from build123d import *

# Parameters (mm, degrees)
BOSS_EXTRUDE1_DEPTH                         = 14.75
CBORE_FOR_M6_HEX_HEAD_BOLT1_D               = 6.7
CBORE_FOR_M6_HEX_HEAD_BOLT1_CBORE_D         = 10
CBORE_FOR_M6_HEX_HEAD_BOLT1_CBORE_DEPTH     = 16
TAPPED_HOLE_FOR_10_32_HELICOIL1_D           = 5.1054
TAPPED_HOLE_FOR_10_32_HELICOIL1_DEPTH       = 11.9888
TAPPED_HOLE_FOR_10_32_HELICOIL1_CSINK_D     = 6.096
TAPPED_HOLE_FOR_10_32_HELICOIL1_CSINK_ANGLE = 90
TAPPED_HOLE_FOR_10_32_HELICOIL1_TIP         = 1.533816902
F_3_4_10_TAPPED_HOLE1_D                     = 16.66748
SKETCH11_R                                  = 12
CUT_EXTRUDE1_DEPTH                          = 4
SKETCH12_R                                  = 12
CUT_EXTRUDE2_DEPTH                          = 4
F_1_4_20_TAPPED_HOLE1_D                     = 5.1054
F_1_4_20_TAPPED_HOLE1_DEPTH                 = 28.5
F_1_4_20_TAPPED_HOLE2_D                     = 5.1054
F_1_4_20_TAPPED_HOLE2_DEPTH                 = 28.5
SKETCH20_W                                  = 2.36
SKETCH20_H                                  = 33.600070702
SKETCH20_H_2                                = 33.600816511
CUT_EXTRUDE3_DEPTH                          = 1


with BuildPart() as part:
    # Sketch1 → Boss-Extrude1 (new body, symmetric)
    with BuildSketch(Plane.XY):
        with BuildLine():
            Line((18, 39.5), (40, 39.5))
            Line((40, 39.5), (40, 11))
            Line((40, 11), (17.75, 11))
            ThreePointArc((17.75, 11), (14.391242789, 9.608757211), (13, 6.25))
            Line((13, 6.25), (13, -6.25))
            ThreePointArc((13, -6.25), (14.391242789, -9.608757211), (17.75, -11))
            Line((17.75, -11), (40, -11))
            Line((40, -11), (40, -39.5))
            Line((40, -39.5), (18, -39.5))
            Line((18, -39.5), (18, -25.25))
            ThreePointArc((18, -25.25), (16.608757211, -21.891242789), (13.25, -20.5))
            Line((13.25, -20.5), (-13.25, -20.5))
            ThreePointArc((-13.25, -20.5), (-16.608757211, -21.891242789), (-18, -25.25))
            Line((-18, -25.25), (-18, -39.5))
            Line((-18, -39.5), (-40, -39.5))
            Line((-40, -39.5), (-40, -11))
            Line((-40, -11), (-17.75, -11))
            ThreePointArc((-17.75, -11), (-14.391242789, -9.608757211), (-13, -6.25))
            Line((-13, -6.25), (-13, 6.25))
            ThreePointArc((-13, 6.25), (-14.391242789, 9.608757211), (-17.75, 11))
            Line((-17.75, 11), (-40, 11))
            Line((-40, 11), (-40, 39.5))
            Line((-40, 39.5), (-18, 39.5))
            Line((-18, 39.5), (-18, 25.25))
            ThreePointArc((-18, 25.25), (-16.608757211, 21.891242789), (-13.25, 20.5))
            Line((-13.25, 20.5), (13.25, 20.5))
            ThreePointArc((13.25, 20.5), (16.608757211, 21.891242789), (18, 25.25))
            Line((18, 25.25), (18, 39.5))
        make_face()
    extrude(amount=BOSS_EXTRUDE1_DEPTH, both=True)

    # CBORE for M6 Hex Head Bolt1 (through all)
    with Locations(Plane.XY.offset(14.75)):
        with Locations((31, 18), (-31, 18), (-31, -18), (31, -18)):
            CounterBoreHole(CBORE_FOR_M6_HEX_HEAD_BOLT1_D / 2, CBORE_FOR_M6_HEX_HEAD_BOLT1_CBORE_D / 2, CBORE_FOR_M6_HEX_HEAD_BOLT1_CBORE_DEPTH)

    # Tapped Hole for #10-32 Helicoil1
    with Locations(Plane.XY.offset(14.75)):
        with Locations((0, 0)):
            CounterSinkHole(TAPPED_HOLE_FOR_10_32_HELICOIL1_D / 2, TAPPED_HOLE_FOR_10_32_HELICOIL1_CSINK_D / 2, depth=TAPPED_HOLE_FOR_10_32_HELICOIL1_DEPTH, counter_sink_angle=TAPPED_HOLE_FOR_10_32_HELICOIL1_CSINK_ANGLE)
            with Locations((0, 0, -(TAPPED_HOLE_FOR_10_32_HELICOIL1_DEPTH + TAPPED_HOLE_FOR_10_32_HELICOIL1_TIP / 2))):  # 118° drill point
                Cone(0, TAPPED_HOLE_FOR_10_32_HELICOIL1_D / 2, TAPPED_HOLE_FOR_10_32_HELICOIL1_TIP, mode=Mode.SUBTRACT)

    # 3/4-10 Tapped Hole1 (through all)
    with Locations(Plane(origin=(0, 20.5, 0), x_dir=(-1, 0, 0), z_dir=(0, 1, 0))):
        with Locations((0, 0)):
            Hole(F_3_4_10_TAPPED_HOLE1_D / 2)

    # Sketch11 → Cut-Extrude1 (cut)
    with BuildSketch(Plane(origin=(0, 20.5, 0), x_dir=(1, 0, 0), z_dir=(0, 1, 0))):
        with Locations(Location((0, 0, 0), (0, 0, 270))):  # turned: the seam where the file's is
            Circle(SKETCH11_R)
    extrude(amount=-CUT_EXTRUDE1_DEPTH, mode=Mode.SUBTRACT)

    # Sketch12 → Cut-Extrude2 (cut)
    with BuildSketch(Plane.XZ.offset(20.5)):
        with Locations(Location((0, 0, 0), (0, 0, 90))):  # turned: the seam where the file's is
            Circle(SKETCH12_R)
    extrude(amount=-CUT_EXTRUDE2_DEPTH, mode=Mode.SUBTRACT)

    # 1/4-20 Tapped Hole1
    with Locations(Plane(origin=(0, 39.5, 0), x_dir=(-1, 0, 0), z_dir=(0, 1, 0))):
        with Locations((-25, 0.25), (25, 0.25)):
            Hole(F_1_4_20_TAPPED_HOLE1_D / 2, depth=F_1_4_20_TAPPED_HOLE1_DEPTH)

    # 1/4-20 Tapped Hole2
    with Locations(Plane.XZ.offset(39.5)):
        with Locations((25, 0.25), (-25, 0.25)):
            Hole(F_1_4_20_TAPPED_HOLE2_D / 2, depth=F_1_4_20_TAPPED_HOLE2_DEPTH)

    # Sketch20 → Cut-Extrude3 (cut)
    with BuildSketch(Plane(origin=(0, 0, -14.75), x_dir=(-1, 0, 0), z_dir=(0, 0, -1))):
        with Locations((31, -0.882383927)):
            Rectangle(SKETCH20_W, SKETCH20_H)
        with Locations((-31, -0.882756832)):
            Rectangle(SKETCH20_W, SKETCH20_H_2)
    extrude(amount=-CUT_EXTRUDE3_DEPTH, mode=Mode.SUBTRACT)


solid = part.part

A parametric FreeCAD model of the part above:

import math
import FreeCAD as App
import Part
import Sketcher

V = App.Vector
Q = App.Units.Quantity

doc = App.newDocument("Part")
body = doc.addObject("PartDesign::Body", "Body")

sketch1 = body.newObject("Sketcher::SketchObject", "Sketch")
sketch1.AttachmentSupport = (doc.getObject("XY_Plane"), [""])
sketch1.MapMode = "FlatFace"
sketch1.addGeometry(Part.LineSegment(V(40, 39.5, 0), V(18, 39.5, 0)), False)
sketch1.addGeometry(Part.LineSegment(V(18, 39.5, 0), V(18, 25.2, 0)), False)
sketch1.addGeometry(Part.ArcOfCircle(Part.Circle(V(13.3, 25.2, 0), V(0, 0, 1), 4.7), math.radians(-90), math.radians(0)), False)
sketch1.addGeometry(Part.LineSegment(V(13.2, 20.5, 0), V(-13.2, 20.5, 0)), False)
sketch1.addGeometry(Part.ArcOfCircle(Part.Circle(V(-13.3, 25.2, 0), V(0, 0, 1), 4.7), math.radians(180), math.radians(270)), False)
sketch1.addGeometry(Part.LineSegment(V(-18, 25.2, 0), V(-18, 39.5, 0)), False)
sketch1.addGeometry(Part.LineSegment(V(-18, 39.5, 0), V(-40, 39.5, 0)), False)
sketch1.addGeometry(Part.LineSegment(V(-40, 39.5, 0), V(-40, 11, 0)), False)
sketch1.addGeometry(Part.LineSegment(V(-40, 11, 0), V(-17.8, 11, 0)), False)
sketch1.addGeometry(Part.ArcOfCircle(Part.Circle(V(-17.7, 6.3, 0), V(0, 0, 1), 4.7), math.radians(0), math.radians(90)), False)
sketch1.addGeometry(Part.LineSegment(V(-13, 6.2, 0), V(-13, -6.2, 0)), False)
sketch1.addGeometry(Part.ArcOfCircle(Part.Circle(V(-17.7, -6.3, 0), V(0, 0, 1), 4.7), math.radians(-90), math.radians(0)), False)
sketch1.addGeometry(Part.LineSegment(V(-17.8, -11, 0), V(-40, -11, 0)), False)
sketch1.addGeometry(Part.LineSegment(V(-40, -11, 0), V(-40, -39.5, 0)), False)
sketch1.addGeometry(Part.LineSegment(V(-40, -39.5, 0), V(-18, -39.5, 0)), False)
sketch1.addGeometry(Part.LineSegment(V(-18, -39.5, 0), V(-18, -25.2, 0)), False)
sketch1.addGeometry(Part.ArcOfCircle(Part.Circle(V(-13.3, -25.2, 0), V(0, 0, 1), 4.7), math.radians(90), math.radians(180)), False)
sketch1.addGeometry(Part.LineSegment(V(-13.2, -20.5, 0), V(13.2, -20.5, 0)), False)
sketch1.addGeometry(Part.ArcOfCircle(Part.Circle(V(13.3, -25.2, 0), V(0, 0, 1), 4.7), math.radians(0), math.radians(90)), False)
sketch1.addGeometry(Part.LineSegment(V(18, -25.2, 0), V(18, -39.5, 0)), False)
sketch1.addGeometry(Part.LineSegment(V(18, -39.5, 0), V(40, -39.5, 0)), False)
sketch1.addGeometry(Part.LineSegment(V(40, -39.5, 0), V(40, -11, 0)), False)
sketch1.addGeometry(Part.LineSegment(V(40, -11, 0), V(17.8, -11, 0)), False)
sketch1.addGeometry(Part.ArcOfCircle(Part.Circle(V(17.7, -6.3, 0), V(0, 0, 1), 4.7), math.radians(180), math.radians(270)), False)
sketch1.addGeometry(Part.LineSegment(V(13, -6.2, 0), V(13, 6.2, 0)), False)
sketch1.addGeometry(Part.ArcOfCircle(Part.Circle(V(17.7, 6.3, 0), V(0, 0, 1), 4.7), math.radians(90), math.radians(180)), False)
sketch1.addGeometry(Part.LineSegment(V(17.8, 11, 0), V(40, 11, 0)), False)
sketch1.addGeometry(Part.LineSegment(V(40, 11, 0), V(40, 39.5, 0)), False)
sketch1.addConstraint(Sketcher.Constraint("Coincident", 0, 2, 1, 1))
sketch1.addConstraint(Sketcher.Constraint("Tangent", 1, 2, 2, 2))
sketch1.addConstraint(Sketcher.Constraint("Tangent", 2, 1, 3, 1))
sketch1.addConstraint(Sketcher.Constraint("Tangent", 3, 2, 4, 2))
sketch1.addConstraint(Sketcher.Constraint("Tangent", 4, 1, 5, 1))
sketch1.addConstraint(Sketcher.Constraint("Coincident", 5, 2, 6, 1))
sketch1.addConstraint(Sketcher.Constraint("Coincident", 6, 2, 7, 1))
sketch1.addConstraint(Sketcher.Constraint("Coincident", 7, 2, 8, 1))
sketch1.addConstraint(Sketcher.Constraint("Tangent", 8, 2, 9, 2))
sketch1.addConstraint(Sketcher.Constraint("Tangent", 9, 1, 10, 1))
sketch1.addConstraint(Sketcher.Constraint("Tangent", 10, 2, 11, 2))
sketch1.addConstraint(Sketcher.Constraint("Tangent", 11, 1, 12, 1))
sketch1.addConstraint(Sketcher.Constraint("Coincident", 12, 2, 13, 1))
sketch1.addConstraint(Sketcher.Constraint("Coincident", 13, 2, 14, 1))
sketch1.addConstraint(Sketcher.Constraint("Coincident", 14, 2, 15, 1))
sketch1.addConstraint(Sketcher.Constraint("Tangent", 15, 2, 16, 2))
sketch1.addConstraint(Sketcher.Constraint("Tangent", 16, 1, 17, 1))
sketch1.addConstraint(Sketcher.Constraint("Tangent", 17, 2, 18, 2))
sketch1.addConstraint(Sketcher.Constraint("Tangent", 18, 1, 19, 1))
sketch1.addConstraint(Sketcher.Constraint("Coincident", 19, 2, 20, 1))
sketch1.addConstraint(Sketcher.Constraint("Coincident", 20, 2, 21, 1))
sketch1.addConstraint(Sketcher.Constraint("Coincident", 21, 2, 22, 1))
sketch1.addConstraint(Sketcher.Constraint("Tangent", 22, 2, 23, 2))
sketch1.addConstraint(Sketcher.Constraint("Tangent", 23, 1, 24, 1))
sketch1.addConstraint(Sketcher.Constraint("Tangent", 24, 2, 25, 2))
sketch1.addConstraint(Sketcher.Constraint("Tangent", 25, 1, 26, 1))
sketch1.addConstraint(Sketcher.Constraint("Coincident", 26, 2, 27, 1))
sketch1.addConstraint(Sketcher.Constraint("Coincident", 27, 2, 0, 1))
sketch1.addConstraint(Sketcher.Constraint("Horizontal", 0))
sketch1.addConstraint(Sketcher.Constraint("Vertical", 1))
sketch1.addConstraint(Sketcher.Constraint("Horizontal", 3))
sketch1.addConstraint(Sketcher.Constraint("Vertical", 5))
sketch1.addConstraint(Sketcher.Constraint("Horizontal", 6))
sketch1.addConstraint(Sketcher.Constraint("Vertical", 7))
sketch1.addConstraint(Sketcher.Constraint("Horizontal", 8))
sketch1.addConstraint(Sketcher.Constraint("Vertical", 10))
sketch1.addConstraint(Sketcher.Constraint("Horizontal", 12))
sketch1.addConstraint(Sketcher.Constraint("Vertical", 13))
sketch1.addConstraint(Sketcher.Constraint("Horizontal", 14))
sketch1.addConstraint(Sketcher.Constraint("Vertical", 15))
sketch1.addConstraint(Sketcher.Constraint("Horizontal", 17))
sketch1.addConstraint(Sketcher.Constraint("Vertical", 19))
sketch1.addConstraint(Sketcher.Constraint("Horizontal", 20))
sketch1.addConstraint(Sketcher.Constraint("Vertical", 21))
sketch1.addConstraint(Sketcher.Constraint("Horizontal", 22))
sketch1.addConstraint(Sketcher.Constraint("Vertical", 24))
sketch1.addConstraint(Sketcher.Constraint("Horizontal", 26))
sketch1.addConstraint(Sketcher.Constraint("Vertical", 27))
sketch1.addConstraint(Sketcher.Constraint("Equal", 2, 4))
sketch1.addConstraint(Sketcher.Constraint("Equal", 4, 9))
sketch1.addConstraint(Sketcher.Constraint("Equal", 9, 11))
sketch1.addConstraint(Sketcher.Constraint("Equal", 11, 16))
sketch1.addConstraint(Sketcher.Constraint("Equal", 16, 18))
sketch1.addConstraint(Sketcher.Constraint("Equal", 18, 23))
sketch1.addConstraint(Sketcher.Constraint("Equal", 23, 25))
sketch1.addConstraint(Sketcher.Constraint("Symmetric", 2, 3, 16, 3, -1, 1))
sketch1.addConstraint(Sketcher.Constraint("Symmetric", 9, 3, 23, 3, -1, 1))
sketch1.addConstraint(Sketcher.Constraint("Symmetric", 5, 2, 19, 2, -1, 1))
sketch1.addConstraint(Sketcher.Constraint("Symmetric", 12, 2, 26, 2, -1, 1))
sketch1.addConstraint(Sketcher.Constraint("Symmetric", 0, 2, 5, 2, -2))
sketch1.addConstraint(Sketcher.Constraint("Symmetric", 13, 2, 20, 2, -2))
sketch1.addConstraint(Sketcher.Constraint("Symmetric", 7, 2, 26, 2, -2))
sketch1.addConstraint(Sketcher.Constraint("DistanceX", 0, 2, 0, 1, Q("22 mm")))
sketch1.addConstraint(Sketcher.Constraint("Radius", 2, Q("4.75 mm")))
sketch1.addConstraint(Sketcher.Constraint("DistanceX", 3, 2, 3, 1, Q("26.5 mm")))
sketch1.addConstraint(Sketcher.Constraint("DistanceY", 7, 2, 7, 1, Q("28.5 mm")))
sketch1.addConstraint(Sketcher.Constraint("DistanceY", 10, 2, 10, 1, Q("12.5 mm")))
sketch1.addConstraint(Sketcher.Constraint("DistanceX", 9, 1, -1, 1, Q("13 mm")))
sketch1.addConstraint(Sketcher.Constraint("DistanceY", 9, 3, 4, 3, Q("19 mm")))
pad1 = body.newObject("PartDesign::Pad", "Pad")
pad1.Profile = sketch1
pad1.Length = 29.5
pad1.Midplane = True

sketch2 = body.newObject("Sketcher::SketchObject", "Sketch001")
sketch2.AttachmentSupport = (doc.getObject("XY_Plane"), [""])
sketch2.MapMode = "FlatFace"
sketch2.AttachmentOffset = App.Placement(V(0, 0, 14.75), App.Rotation())
sketch2.addGeometry(Part.Circle(V(31, 18, 0), V(0, 0, 1), 3.4), False)
sketch2.addGeometry(Part.Circle(V(-31, 18, 0), V(0, 0, 1), 3.4), False)
sketch2.addGeometry(Part.Circle(V(-31, -18, 0), V(0, 0, 1), 3.4), False)
sketch2.addGeometry(Part.Circle(V(31, -18, 0), V(0, 0, 1), 3.4), False)
sketch2.addConstraint(Sketcher.Constraint("Equal", 0, 1))
sketch2.addConstraint(Sketcher.Constraint("Equal", 1, 2))
sketch2.addConstraint(Sketcher.Constraint("Equal", 2, 3))
sketch2.addConstraint(Sketcher.Constraint("Symmetric", 0, 3, 2, 3, -1, 1))
sketch2.addConstraint(Sketcher.Constraint("Symmetric", 1, 3, 3, 3, -1, 1))
sketch2.addConstraint(Sketcher.Constraint("Symmetric", 0, 3, 1, 3, -2))
sketch2.addConstraint(Sketcher.Constraint("Diameter", 0, Q("6.7 mm")))
sketch2.addConstraint(Sketcher.Constraint("DistanceX", -1, 1, 0, 3, Q("31 mm")))
sketch2.addConstraint(Sketcher.Constraint("DistanceY", -1, 1, 0, 3, Q("18 mm")))
doc.recompute()
hole = body.newObject("PartDesign::Hole", "Hole")
hole.Profile = sketch2
hole.ThreadType = "None"
hole.Diameter = 6.7
hole.DepthType = "ThroughAll"
hole.HoleCutType = "Counterbore"
hole.HoleCutDiameter = 10
hole.HoleCutDepth = 16

sketch3 = body.newObject("Sketcher::SketchObject", "Sketch002")
sketch3.AttachmentSupport = (doc.getObject("XY_Plane"), [""])
sketch3.MapMode = "FlatFace"
sketch3.AttachmentOffset = App.Placement(V(0, 0, 14.75), App.Rotation())
sketch3.addGeometry(Part.Circle(V(0, 0, 0), V(0, 0, 1), 2.6), False)
sketch3.addConstraint(Sketcher.Constraint("Coincident", 0, 3, -1, 1))
sketch3.addConstraint(Sketcher.Constraint("Diameter", 0, Q("5.1054 mm")))
doc.recompute()
hole2 = body.newObject("PartDesign::Hole", "Hole001")
hole2.Profile = sketch3
hole2.ThreadType = "None"
hole2.Diameter = 5.1054
hole2.DepthType = "Dimension"
hole2.Depth = 11.9888
hole2.DrillPoint = "Angled"
hole2.DrillPointAngle = 118
hole2.HoleCutType = "Countersink"
hole2.HoleCutDiameter = 6.096
hole2.HoleCutCountersinkAngle = 90

sketch4 = body.newObject("Sketcher::SketchObject", "Sketch003")
sketch4.AttachmentSupport = (doc.getObject("XZ_Plane"), [""])
sketch4.MapMode = "FlatFace"
sketch4.AttachmentOffset = App.Placement(V(0, 0, -20.5), App.Rotation())
sketch4.addGeometry(Part.Circle(V(0, 0, 0), V(0, 0, 1), 8), False)
sketch4.addConstraint(Sketcher.Constraint("Coincident", 0, 3, -1, 1))
sketch4.addConstraint(Sketcher.Constraint("Diameter", 0, Q("16.66748 mm")))
doc.recompute()
hole3 = body.newObject("PartDesign::Hole", "Hole002")
hole3.Profile = sketch4
hole3.ThreadType = "None"
hole3.Diameter = 16.66748
hole3.DepthType = "ThroughAll"
hole3.Reversed = True

sketch5 = body.newObject("Sketcher::SketchObject", "Sketch004")
sketch5.AttachmentSupport = (doc.getObject("XZ_Plane"), [""])
sketch5.MapMode = "FlatFace"
sketch5.AttachmentOffset = App.Placement(V(0, 0, -20.5), App.Rotation())
sketch5.addGeometry(Part.Circle(V(0, 0, 0), V(0, 0, 1), 12), False)
sketch5.addConstraint(Sketcher.Constraint("Coincident", 0, 3, -1, 1))
sketch5.addConstraint(Sketcher.Constraint("Diameter", 0, Q("24 mm")))
pocket1 = body.newObject("PartDesign::Pocket", "Pocket")
pocket1.Profile = sketch5
pocket1.Length = 4
pocket1.Reversed = True

sketch6 = body.newObject("Sketcher::SketchObject", "Sketch005")
sketch6.AttachmentSupport = (doc.getObject("XZ_Plane"), [""])
sketch6.MapMode = "FlatFace"
sketch6.AttachmentOffset = App.Placement(V(0, 0, 20.5), App.Rotation())
sketch6.addGeometry(Part.Circle(V(0, 0, 0), V(0, 0, 1), 12), False)
sketch6.addConstraint(Sketcher.Constraint("Coincident", 0, 3, -1, 1))
sketch6.addConstraint(Sketcher.Constraint("Diameter", 0, Q("24 mm")))
pocket2 = body.newObject("PartDesign::Pocket", "Pocket001")
pocket2.Profile = sketch6
pocket2.Length = 4

sketch7 = body.newObject("Sketcher::SketchObject", "Sketch006")
sketch7.AttachmentSupport = (doc.getObject("XZ_Plane"), [""])
sketch7.MapMode = "FlatFace"
sketch7.AttachmentOffset = App.Placement(V(0, 0, -39.5), App.Rotation())
sketch7.addGeometry(Part.Circle(V(25, 0.2, 0), V(0, 0, 1), 2.6), False)
sketch7.addGeometry(Part.Circle(V(-25, 0.2, 0), V(0, 0, 1), 2.6), False)
sketch7.addConstraint(Sketcher.Constraint("Equal", 0, 1))
sketch7.addConstraint(Sketcher.Constraint("Symmetric", 0, 3, 1, 3, -2))
sketch7.addConstraint(Sketcher.Constraint("DistanceX", -1, 1, 0, 3, Q("25 mm")))
sketch7.addConstraint(Sketcher.Constraint("Diameter", 0, Q("5.1054 mm")))
sketch7.addConstraint(Sketcher.Constraint("DistanceY", -1, 1, 0, 3, Q("0.25 mm")))
doc.recompute()
hole4 = body.newObject("PartDesign::Hole", "Hole003")
hole4.Profile = sketch7
hole4.ThreadType = "None"
hole4.Diameter = 5.1054
hole4.DepthType = "Dimension"
hole4.Depth = 28.5
hole4.DrillPoint = "Flat"
hole4.Reversed = True

sketch8 = body.newObject("Sketcher::SketchObject", "Sketch007")
sketch8.AttachmentSupport = (doc.getObject("XZ_Plane"), [""])
sketch8.MapMode = "FlatFace"
sketch8.AttachmentOffset = App.Placement(V(0, 0, 39.5), App.Rotation())
sketch8.addGeometry(Part.Circle(V(25, 0.2, 0), V(0, 0, 1), 2.6), False)
sketch8.addGeometry(Part.Circle(V(-25, 0.2, 0), V(0, 0, 1), 2.6), False)
sketch8.addConstraint(Sketcher.Constraint("Equal", 0, 1))
sketch8.addConstraint(Sketcher.Constraint("Symmetric", 0, 3, 1, 3, -2))
sketch8.addConstraint(Sketcher.Constraint("DistanceX", -1, 1, 0, 3, Q("25 mm")))
sketch8.addConstraint(Sketcher.Constraint("Diameter", 0, Q("5.1054 mm")))
sketch8.addConstraint(Sketcher.Constraint("DistanceY", -1, 1, 0, 3, Q("0.25 mm")))
doc.recompute()
hole5 = body.newObject("PartDesign::Hole", "Hole004")
hole5.Profile = sketch8
hole5.ThreadType = "None"
hole5.Diameter = 5.1054
hole5.DepthType = "Dimension"
hole5.Depth = 28.5
hole5.DrillPoint = "Flat"

sketch9 = body.newObject("Sketcher::SketchObject", "Sketch008")
sketch9.AttachmentSupport = (doc.getObject("XY_Plane"), [""])
sketch9.MapMode = "FlatFace"
sketch9.AttachmentOffset = App.Placement(V(0, 0, -14.75), App.Rotation())
sketch9.addGeometry(Part.LineSegment(V(-29.8, 15.9, 0), V(-29.8, -17.7, 0)), False)
sketch9.addGeometry(Part.LineSegment(V(-29.8, -17.7, 0), V(-32.2, -17.7, 0)), False)
sketch9.addGeometry(Part.LineSegment(V(-32.2, -17.7, 0), V(-32.2, 15.9, 0)), False)
sketch9.addGeometry(Part.LineSegment(V(-32.2, 15.9, 0), V(-29.8, 15.9, 0)), False)
sketch9.addGeometry(Part.LineSegment(V(32.2, 15.9, 0), V(32.2, -17.7, 0)), False)
sketch9.addGeometry(Part.LineSegment(V(32.2, -17.7, 0), V(29.8, -17.7, 0)), False)
sketch9.addGeometry(Part.LineSegment(V(29.8, -17.7, 0), V(29.8, 15.9, 0)), False)
sketch9.addGeometry(Part.LineSegment(V(29.8, 15.9, 0), V(32.2, 15.9, 0)), False)
sketch9.addConstraint(Sketcher.Constraint("Coincident", 0, 2, 1, 1))
sketch9.addConstraint(Sketcher.Constraint("Coincident", 1, 2, 2, 1))
sketch9.addConstraint(Sketcher.Constraint("Coincident", 2, 2, 3, 1))
sketch9.addConstraint(Sketcher.Constraint("Coincident", 3, 2, 0, 1))
sketch9.addConstraint(Sketcher.Constraint("Coincident", 4, 2, 5, 1))
sketch9.addConstraint(Sketcher.Constraint("Coincident", 5, 2, 6, 1))
sketch9.addConstraint(Sketcher.Constraint("Coincident", 6, 2, 7, 1))
sketch9.addConstraint(Sketcher.Constraint("Coincident", 7, 2, 4, 1))
sketch9.addConstraint(Sketcher.Constraint("Vertical", 0))
sketch9.addConstraint(Sketcher.Constraint("Horizontal", 1))
sketch9.addConstraint(Sketcher.Constraint("Vertical", 2))
sketch9.addConstraint(Sketcher.Constraint("Horizontal", 3))
sketch9.addConstraint(Sketcher.Constraint("Vertical", 4))
sketch9.addConstraint(Sketcher.Constraint("Horizontal", 5))
sketch9.addConstraint(Sketcher.Constraint("Vertical", 6))
sketch9.addConstraint(Sketcher.Constraint("Horizontal", 7))
sketch9.addConstraint(Sketcher.Constraint("Symmetric", 3, 2, 6, 2, -2))
sketch9.addConstraint(Sketcher.Constraint("Equal", 3, 5))
sketch9.addConstraint(Sketcher.Constraint("DistanceX", 0, 2, 4, 2, Q("62 mm")))
sketch9.addConstraint(Sketcher.Constraint("DistanceX", 1, 2, 1, 1, Q("2.36 mm")))
sketch9.addConstraint(Sketcher.Constraint("DistanceY", 0, 2, 0, 1, Q("33.600071 mm")))
sketch9.addConstraint(Sketcher.Constraint("DistanceY", 4, 2, 4, 1, Q("33.600817 mm")))
sketch9.addConstraint(Sketcher.Constraint("DistanceY", 0, 2, -1, 1, Q("17.682419 mm")))
pocket3 = body.newObject("PartDesign::Pocket", "Pocket002")
pocket3.Profile = sketch9
pocket3.Length = 1
pocket3.Reversed = True

doc.recompute()
